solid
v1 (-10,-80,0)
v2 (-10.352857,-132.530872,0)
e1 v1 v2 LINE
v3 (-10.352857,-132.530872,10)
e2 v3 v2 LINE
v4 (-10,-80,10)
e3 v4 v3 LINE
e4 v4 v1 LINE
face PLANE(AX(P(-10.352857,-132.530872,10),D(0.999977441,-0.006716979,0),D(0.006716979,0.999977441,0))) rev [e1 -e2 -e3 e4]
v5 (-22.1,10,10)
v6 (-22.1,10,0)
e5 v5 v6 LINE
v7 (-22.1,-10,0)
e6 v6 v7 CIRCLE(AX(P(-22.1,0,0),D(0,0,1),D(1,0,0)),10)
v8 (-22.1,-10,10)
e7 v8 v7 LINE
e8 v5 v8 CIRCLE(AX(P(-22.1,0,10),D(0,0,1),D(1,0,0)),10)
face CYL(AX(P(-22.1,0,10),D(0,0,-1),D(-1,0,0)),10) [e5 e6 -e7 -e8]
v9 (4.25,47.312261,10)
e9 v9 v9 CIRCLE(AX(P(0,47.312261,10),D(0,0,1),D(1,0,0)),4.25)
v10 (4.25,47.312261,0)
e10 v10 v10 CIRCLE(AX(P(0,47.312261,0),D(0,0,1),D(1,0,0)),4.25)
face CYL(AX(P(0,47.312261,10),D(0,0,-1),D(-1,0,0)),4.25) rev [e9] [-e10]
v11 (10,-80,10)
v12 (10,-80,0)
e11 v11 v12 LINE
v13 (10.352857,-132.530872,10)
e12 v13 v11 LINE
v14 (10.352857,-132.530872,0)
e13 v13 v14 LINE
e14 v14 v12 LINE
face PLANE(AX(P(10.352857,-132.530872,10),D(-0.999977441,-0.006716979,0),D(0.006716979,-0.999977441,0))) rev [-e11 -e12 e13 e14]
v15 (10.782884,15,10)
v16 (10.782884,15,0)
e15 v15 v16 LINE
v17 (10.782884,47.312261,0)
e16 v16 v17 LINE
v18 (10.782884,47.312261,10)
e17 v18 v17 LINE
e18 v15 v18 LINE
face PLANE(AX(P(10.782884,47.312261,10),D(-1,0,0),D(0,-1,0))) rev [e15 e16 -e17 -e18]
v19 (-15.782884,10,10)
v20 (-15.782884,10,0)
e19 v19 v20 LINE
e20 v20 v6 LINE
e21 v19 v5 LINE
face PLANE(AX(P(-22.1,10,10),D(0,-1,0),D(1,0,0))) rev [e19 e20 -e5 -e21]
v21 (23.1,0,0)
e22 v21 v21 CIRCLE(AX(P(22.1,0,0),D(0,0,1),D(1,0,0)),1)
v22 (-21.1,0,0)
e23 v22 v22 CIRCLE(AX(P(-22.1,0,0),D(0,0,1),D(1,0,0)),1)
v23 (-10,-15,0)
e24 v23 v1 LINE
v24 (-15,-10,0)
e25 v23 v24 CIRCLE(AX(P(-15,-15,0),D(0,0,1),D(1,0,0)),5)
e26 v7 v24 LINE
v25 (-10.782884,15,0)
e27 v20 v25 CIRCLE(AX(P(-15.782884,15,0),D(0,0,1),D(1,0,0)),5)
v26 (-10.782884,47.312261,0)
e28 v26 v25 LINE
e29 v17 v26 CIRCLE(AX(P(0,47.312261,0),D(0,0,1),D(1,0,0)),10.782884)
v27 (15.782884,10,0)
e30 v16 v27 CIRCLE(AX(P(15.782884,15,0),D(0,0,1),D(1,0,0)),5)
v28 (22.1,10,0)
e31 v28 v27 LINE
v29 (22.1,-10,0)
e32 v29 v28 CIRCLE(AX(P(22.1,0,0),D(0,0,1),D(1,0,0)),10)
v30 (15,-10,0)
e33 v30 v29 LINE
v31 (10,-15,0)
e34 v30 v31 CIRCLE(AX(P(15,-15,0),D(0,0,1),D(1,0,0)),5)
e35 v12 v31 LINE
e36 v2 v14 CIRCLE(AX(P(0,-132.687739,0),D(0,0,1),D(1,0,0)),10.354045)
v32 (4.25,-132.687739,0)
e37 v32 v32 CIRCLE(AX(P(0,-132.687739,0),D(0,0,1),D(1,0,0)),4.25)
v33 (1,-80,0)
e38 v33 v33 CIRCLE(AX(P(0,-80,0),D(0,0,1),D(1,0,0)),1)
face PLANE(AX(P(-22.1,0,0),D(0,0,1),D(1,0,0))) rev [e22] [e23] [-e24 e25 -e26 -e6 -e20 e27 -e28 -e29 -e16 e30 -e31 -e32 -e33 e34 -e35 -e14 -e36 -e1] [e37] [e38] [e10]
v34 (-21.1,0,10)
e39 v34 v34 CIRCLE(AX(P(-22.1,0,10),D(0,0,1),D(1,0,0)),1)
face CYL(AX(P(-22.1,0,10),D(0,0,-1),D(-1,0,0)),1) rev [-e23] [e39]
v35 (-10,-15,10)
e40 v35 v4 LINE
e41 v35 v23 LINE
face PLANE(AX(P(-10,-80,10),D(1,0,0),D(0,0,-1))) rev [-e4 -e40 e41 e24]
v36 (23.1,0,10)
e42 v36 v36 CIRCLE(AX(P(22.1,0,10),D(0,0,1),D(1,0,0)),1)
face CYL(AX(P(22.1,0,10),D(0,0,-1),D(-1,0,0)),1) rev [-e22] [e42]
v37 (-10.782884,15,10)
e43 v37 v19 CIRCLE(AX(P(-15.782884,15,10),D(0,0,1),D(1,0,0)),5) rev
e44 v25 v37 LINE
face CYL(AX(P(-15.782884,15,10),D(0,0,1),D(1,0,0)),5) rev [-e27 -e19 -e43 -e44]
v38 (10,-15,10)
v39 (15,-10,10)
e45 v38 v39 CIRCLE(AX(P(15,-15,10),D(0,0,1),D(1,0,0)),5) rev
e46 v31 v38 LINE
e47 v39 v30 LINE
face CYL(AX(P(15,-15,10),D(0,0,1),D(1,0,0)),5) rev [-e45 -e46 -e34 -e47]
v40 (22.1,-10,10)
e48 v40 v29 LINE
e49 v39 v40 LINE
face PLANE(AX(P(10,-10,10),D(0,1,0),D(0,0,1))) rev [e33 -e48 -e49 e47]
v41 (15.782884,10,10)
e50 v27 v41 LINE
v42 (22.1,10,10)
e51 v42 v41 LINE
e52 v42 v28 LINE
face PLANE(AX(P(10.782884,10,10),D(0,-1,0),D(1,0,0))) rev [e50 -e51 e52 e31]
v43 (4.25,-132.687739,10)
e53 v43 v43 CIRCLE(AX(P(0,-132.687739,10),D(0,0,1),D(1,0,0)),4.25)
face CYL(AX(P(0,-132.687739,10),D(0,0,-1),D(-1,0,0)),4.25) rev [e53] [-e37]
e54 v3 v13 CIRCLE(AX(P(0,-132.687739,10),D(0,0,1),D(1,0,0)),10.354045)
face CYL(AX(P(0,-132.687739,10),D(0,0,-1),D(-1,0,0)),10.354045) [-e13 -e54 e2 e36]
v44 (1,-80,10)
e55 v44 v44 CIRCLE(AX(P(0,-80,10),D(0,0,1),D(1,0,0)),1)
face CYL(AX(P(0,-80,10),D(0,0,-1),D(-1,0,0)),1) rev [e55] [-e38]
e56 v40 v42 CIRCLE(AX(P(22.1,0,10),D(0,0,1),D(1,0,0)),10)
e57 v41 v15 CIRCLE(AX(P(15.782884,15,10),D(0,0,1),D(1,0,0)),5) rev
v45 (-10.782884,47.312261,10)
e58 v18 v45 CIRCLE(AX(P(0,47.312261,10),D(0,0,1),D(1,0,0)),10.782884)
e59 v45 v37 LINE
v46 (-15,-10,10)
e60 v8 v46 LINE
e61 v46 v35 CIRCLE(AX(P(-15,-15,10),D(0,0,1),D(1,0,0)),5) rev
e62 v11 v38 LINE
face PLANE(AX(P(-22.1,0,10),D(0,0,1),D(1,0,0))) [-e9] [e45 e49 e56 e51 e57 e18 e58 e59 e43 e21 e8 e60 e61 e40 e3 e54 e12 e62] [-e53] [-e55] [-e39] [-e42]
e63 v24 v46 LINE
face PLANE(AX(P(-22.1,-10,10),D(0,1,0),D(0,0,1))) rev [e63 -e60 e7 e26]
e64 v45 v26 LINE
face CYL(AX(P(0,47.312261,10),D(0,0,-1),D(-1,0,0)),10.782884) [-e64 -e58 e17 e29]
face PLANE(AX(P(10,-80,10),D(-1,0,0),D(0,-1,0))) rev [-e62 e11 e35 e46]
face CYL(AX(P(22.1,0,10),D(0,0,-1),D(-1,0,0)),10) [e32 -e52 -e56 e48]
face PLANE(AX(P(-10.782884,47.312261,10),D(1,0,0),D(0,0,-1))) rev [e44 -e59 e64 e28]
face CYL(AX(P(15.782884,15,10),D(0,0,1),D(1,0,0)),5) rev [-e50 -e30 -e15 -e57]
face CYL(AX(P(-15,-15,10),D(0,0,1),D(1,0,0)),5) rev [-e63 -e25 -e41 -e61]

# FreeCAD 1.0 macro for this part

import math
import FreeCAD as App
import Part
import Sketcher


def edges_at(feature, points):
    """Names of the edges that pass closest to the given points."""
    edges = feature.Shape.Edges
    near = lambda p: min(range(len(edges)), key=lambda i: edges[i].distToShape(Part.Vertex(*p))[0])
    return sorted({f"Edge{near(p) + 1}" for p in points})

doc = App.newDocument("Part")
body = doc.addObject("PartDesign::Body", "Body")

sketch1 = body.newObject("Sketcher::SketchObject", "Sketch")
sketch1.AttachmentSupport = (doc.getObject("XY_Plane"), [""])
sketch1.MapMode = "FlatFace"
sketch1.addGeometry(Part.LineSegment(App.Vector(-10.8, 10, 0), App.Vector(-22.1, 10, 0)), False)
sketch1.addGeometry(Part.ArcOfCircle(Part.Circle(App.Vector(-22.1, 0, 0), App.Vector(0, 0, 1), 10), math.radians(90), math.radians(270)), False)
sketch1.addGeometry(Part.LineSegment(App.Vector(-22.1, -10, 0), App.Vector(-10, -10, 0)), False)
sketch1.addGeometry(Part.LineSegment(App.Vector(-10, -10, 0), App.Vector(-10, -80, 0)), False)
sketch1.addGeometry(Part.LineSegment(App.Vector(-10, -80, 0), App.Vector(-10.4, -132.5, 0)), False)
sketch1.addGeometry(Part.ArcOfCircle(Part.Circle(App.Vector(0, -132.7, 0), App.Vector(0, 0, 1), 10.4), math.radians(179), math.radians(361)), False)
sketch1.addGeometry(Part.LineSegment(App.Vector(10.4, -132.5, 0), App.Vector(10, -80, 0)), False)
sketch1.addGeometry(Part.LineSegment(App.Vector(10, -80, 0), App.Vector(10, -10, 0)), False)
sketch1.addGeometry(Part.LineSegment(App.Vector(10, -10, 0), App.Vector(22.1, -10, 0)), False)
sketch1.addGeometry(Part.ArcOfCircle(Part.Circle(App.Vector(22.1, 0, 0), App.Vector(0, 0, 1), 10), math.radians(-90), math.radians(90)), False)
sketch1.addGeometry(Part.LineSegment(App.Vector(22.1, 10, 0), App.Vector(10.8, 10, 0)), False)
sketch1.addGeometry(Part.LineSegment(App.Vector(10.8, 10, 0), App.Vector(10.8, 47.3, 0)), False)
sketch1.addGeometry(Part.ArcOfCircle(Part.Circle(App.Vector(0, 47.3, 0), App.Vector(0, 0, 1), 10.8), math.radians(0), math.radians(180)), False)
sketch1.addGeometry(Part.LineSegment(App.Vector(-10.8, 47.3, 0), App.Vector(-10.8, 10, 0)), False)
sketch1.addGeometry(Part.Circle(App.Vector(0, -132.7, 0), App.Vector(0, 0, 1), 4.2), False)
sketch1.addGeometry(Part.Circle(App.Vector(0, -80, 0), App.Vector(0, 0, 1), 1), False)
sketch1.addGeometry(Part.Circle(App.Vector(22.1, 0, 0), App.Vector(0, 0, 1), 1), False)
sketch1.addGeometry(Part.Circle(App.Vector(-22.1, 0, 0), App.Vector(0, 0, 1), 1), False)
sketch1.addGeometry(Part.Circle(App.Vector(0, 47.3, 0), App.Vector(0, 0, 1), 4.2), False)
sketch1.addConstraint(Sketcher.Constraint("Tangent", 0, 2, 1, 1))
sketch1.addConstraint(Sketcher.Constraint("Tangent", 1, 2, 2, 1))
sketch1.addConstraint(Sketcher.Constraint("Coincident", 2, 2, 3, 1))
sketch1.addConstraint(Sketcher.Constraint("Coincident", 3, 2, 4, 1))
sketch1.addConstraint(Sketcher.Constraint("Coincident", 4, 2, 5, 1))
sketch1.addConstraint(Sketcher.Constraint("Coincident", 5, 2, 6, 1))
sketch1.addConstraint(Sketcher.Constraint("Coincident", 6, 2, 7, 1))
sketch1.addConstraint(Sketcher.Constraint("Coincident", 7, 2, 8, 1))
sketch1.addConstraint(Sketcher.Constraint("Tangent", 8, 2, 9, 1))
sketch1.addConstraint(Sketcher.Constraint("Tangent", 9, 2, 10, 1))
sketch1.addConstraint(Sketcher.Constraint("Coincident", 10, 2, 11, 1))
sketch1.addConstraint(Sketcher.Constraint("Tangent", 11, 2, 12, 1))
sketch1.addConstraint(Sketcher.Constraint("Tangent", 12, 2, 13, 1))
sketch1.addConstraint(Sketcher.Constraint("Coincident", 13, 2, 0, 1))
sketch1.addConstraint(Sketcher.Constraint("Horizontal", 0))
sketch1.addConstraint(Sketcher.Constraint("Horizontal", 2))
sketch1.addConstraint(Sketcher.Constraint("Vertical", 3))
sketch1.addConstraint(Sketcher.Constraint("Vertical", 7))
sketch1.addConstraint(Sketcher.Constraint("Horizontal", 8))
sketch1.addConstraint(Sketcher.Constraint("Horizontal", 10))
sketch1.addConstraint(Sketcher.Constraint("Vertical", 11))
sketch1.addConstraint(Sketcher.Constraint("Vertical", 13))
sketch1.addConstraint(Sketcher.Constraint("Coincident", 14, 3, 5, 3))
sketch1.addConstraint(Sketcher.Constraint("Coincident", 16, 3, 9, 3))
sketch1.addConstraint(Sketcher.Constraint("Coincident", 17, 3, 1, 3))
sketch1.addConstraint(Sketcher.Constraint("Coincident", 18, 3, 12, 3))
sketch1.addConstraint(Sketcher.Constraint("Equal", 1, 9))
sketch1.addConstraint(Sketcher.Constraint("Equal", 15, 16))
sketch1.addConstraint(Sketcher.Constraint("Equal", 16, 17))
sketch1.addConstraint(Sketcher.Constraint("Equal", 14, 18))
sketch1.addConstraint(Sketcher.Constraint("Symmetric", 1, 3, 9, 3, -1, 1))
sketch1.addConstraint(Sketcher.Constraint("Symmetric", 4, 2, 5, 2, -2))
sketch1.addConstraint(Sketcher.Constraint("Symmetric", 3, 2, 6, 2, -2))
sketch1.addConstraint(Sketcher.Constraint("Symmetric", 10, 2, 13, 2, -2))
sketch1.addConstraint(Sketcher.Constraint("PointOnObject", 15, 3, -2))
sketch1.addConstraint(Sketcher.Constraint("Horizontal", 15, 3, 3, 2))
sketch1.addConstraint(Sketcher.Constraint("Diameter", 15, 2.0))
sketch1.addConstraint(Sketcher.Constraint("Radius", 1, 10.0))
sketch1.addConstraint(Sketcher.Constraint("Diameter", 14, 8.5))
sketch1.addConstraint(Sketcher.Constraint("DistanceY", 3, 2, 3, 1, 70.0))
sketch1.addConstraint(Sketcher.Constraint("DistanceX", 2, 1, 2, 2, 12.1))
sketch1.addConstraint(Sketcher.Constraint("DistanceX", 2, 2, -1, 1, 10.0))
sketch1.addConstraint(Sketcher.Constraint("DistanceY", 5, 3, 12, 3, 180.0))
sketch1.addConstraint(Sketcher.Constraint("Radius", 5, 10.354045))
sketch1.addConstraint(Sketcher.Constraint("Radius", 12, 10.782884))
sketch1.addConstraint(Sketcher.Constraint("DistanceY", 11, 1, 11, 2, 37.312261))
sketch1.addConstraint(Sketcher.Constraint("Distance", 4, 52.532057))
pad1 = body.newObject("PartDesign::Pad", "Pad")
pad1.Profile = sketch1
pad1.Length = 10
doc.recompute()

fillet = body.newObject("PartDesign::Fillet", "Fillet")
fillet.Base = (pad1, edges_at(pad1, [
    (-10.783, 10, 5),
    (10.783, 10, 5),
    (10, -10, 5),
    (-10, -10, 5),
]))
fillet.Radius = 5

doc.recompute()
